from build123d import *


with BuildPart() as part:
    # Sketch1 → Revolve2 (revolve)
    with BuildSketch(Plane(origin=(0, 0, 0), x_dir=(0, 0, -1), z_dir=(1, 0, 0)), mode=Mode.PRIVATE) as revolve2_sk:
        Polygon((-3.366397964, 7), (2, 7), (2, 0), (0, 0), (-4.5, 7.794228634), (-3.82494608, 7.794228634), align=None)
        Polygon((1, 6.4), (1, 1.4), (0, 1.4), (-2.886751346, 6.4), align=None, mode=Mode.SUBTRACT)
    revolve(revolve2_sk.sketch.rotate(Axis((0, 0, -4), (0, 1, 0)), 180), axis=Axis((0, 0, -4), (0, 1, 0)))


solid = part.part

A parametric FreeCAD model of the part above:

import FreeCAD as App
import Part
import Sketcher

V = App.Vector
Q = App.Units.Quantity


def add_polygon(sketch, points):
    """Adds a closed chain of lines whose ends are joined by coincident constraints."""
    first, n = sketch.GeometryCount, len(points)
    for a, b in zip(points, points[1:] + points[:1]):
        sketch.addGeometry(Part.LineSegment(App.Vector(*a, 0), App.Vector(*b, 0)), False)
    for i in range(n):
        sketch.addConstraint(Sketcher.Constraint("Coincident", first + i, 2, first + (i + 1) % n, 1))

doc = App.newDocument("Part")
params = doc.addObject("Spreadsheet::Sheet", "Params")
for row, (alias, value) in enumerate([
    ("sketch1_width", "7 mm"),
    ("sketch1_width2", "5 mm"),
    ("sketch1_height", "2 mm"),
    ("sketch1_height2", "1 mm"),
    ("sketch1_length", "9 mm"),
    ("revolution_angle", "360 deg"),
], start=1):
    params.set(f"A{row}", alias)
    params.set(f"B{row}", "=" + value)
    params.setAlias(f"B{row}", alias)

body = doc.addObject("PartDesign::Body", "Body")

sketch1 = body.newObject("Sketcher::SketchObject", "Sketch")
sketch1.AttachmentSupport = (doc.getObject("YZ_Plane"), [""])
sketch1.MapMode = "FlatFace"
add_polygon(sketch1, [(7, -2), (7, 3.366398), (7.794229, 3.824946), (7.794229, 4.5), (0, 0), (0, -2)])
add_polygon(sketch1, [(6.4, -1), (1.4, -1), (1.4, 0), (6.4, 2.886751)])
sketch1.addGeometry(Part.LineSegment(V(0, -4, 0), V(7.794229, -4, 0)), True)
sketch1.addConstraint([
    Sketcher.Constraint("Vertical", 0),
    Sketcher.Constraint("Vertical", 2),
    Sketcher.Constraint("Vertical", 4),
    Sketcher.Constraint("Horizontal", 5),
    Sketcher.Constraint("Horizontal", 6),
    Sketcher.Constraint("Vertical", 7),
    Sketcher.Constraint("Vertical", 9),
    Sketcher.Constraint("Horizontal", 10),
    Sketcher.Constraint("Coincident", 3, 2, -1, 1),
    Sketcher.Constraint("PointOnObject", 7, 2, -1),
    Sketcher.Constraint("PointOnObject", 10, 1, -2),
    Sketcher.Constraint("Parallel", 1, 3),
    Sketcher.Constraint("Parallel", 3, 8),
    Sketcher.Constraint("Vertical", 2, 2, 10, 2),
    Sketcher.Constraint("DistanceX", 5, 1, 5, 2, 7.0),
    Sketcher.Constraint("DistanceX", 6, 2, 6, 1, 5.0),
    Sketcher.Constraint("DistanceY", 4, 2, 4, 1, 2.0),
    Sketcher.Constraint("DistanceY", 7, 1, 7, 2, 1.0),
    Sketcher.Constraint("Angle", 1, Q("30 deg")),
    Sketcher.Constraint("Distance", 3, 9.0),
    Sketcher.Constraint("DistanceY", 10, 1, -1, 1, 4.0),
    Sketcher.Constraint("DistanceX", -1, 1, 6, 2, 1.4),
    Sketcher.Constraint("DistanceY", 0, 1, 0, 2, 5.366398),
])
sketch1.setExpression("Constraints[24]", "Params.sketch1_width")
sketch1.setExpression("Constraints[25]", "Params.sketch1_width2")
sketch1.setExpression("Constraints[26]", "Params.sketch1_height")
sketch1.setExpression("Constraints[27]", "Params.sketch1_height2")
sketch1.setExpression("Constraints[29]", "Params.sketch1_length")
revolution = body.newObject("PartDesign::Revolution", "Revolution")
revolution.Profile = sketch1
revolution.ReferenceAxis = (sketch1, ["Axis0"])
revolution.setExpression("Angle", "Params.revolution_angle")

doc.recompute()
